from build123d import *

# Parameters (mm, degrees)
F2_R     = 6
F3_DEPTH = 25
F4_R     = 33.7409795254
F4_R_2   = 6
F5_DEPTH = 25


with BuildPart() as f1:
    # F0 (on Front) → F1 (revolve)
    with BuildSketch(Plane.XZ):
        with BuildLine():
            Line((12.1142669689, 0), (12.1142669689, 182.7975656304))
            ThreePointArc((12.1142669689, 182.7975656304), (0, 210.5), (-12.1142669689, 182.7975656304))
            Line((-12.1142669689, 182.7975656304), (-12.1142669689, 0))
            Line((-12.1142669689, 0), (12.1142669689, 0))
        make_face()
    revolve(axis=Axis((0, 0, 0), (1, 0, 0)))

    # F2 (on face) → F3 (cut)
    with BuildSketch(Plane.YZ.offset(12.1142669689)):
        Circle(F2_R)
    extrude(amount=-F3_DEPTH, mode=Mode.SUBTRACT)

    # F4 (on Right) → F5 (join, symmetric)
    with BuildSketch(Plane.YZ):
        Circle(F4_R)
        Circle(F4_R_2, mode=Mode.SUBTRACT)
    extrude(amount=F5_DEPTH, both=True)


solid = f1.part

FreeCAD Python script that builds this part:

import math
import FreeCAD as App
import Part
import Sketcher

V = App.Vector
Q = App.Units.Quantity

doc = App.newDocument("Part")
body = doc.addObject("PartDesign::Body", "Body")

# Sketch on XZ plane
sketch1 = body.newObject("Sketcher::SketchObject", "Sketch")
sketch1.AttachmentSupport = (doc.getObject("XZ_Plane"), [""])
sketch1.MapMode = "FlatFace"
sketch1.addGeometry([
    Part.LineSegment(V(12, 0, 0), V(12, 183, 0)),
    Part.ArcOfCircle(Part.Circle(V(0, 194, 0), V(0, 0, 1), 16), math.radians(-43), math.radians(223)),
    Part.LineSegment(V(-12, 183, 0), V(-12, 0, 0)),
    Part.LineSegment(V(-12, 0, 0), V(12, 0, 0)),
], False)
sketch1.addConstraint([
    Sketcher.Constraint("Coincident", 0, 2, 1, 1),
    Sketcher.Constraint("Coincident", 1, 2, 2, 1),
    Sketcher.Constraint("Coincident", 2, 2, 3, 1),
    Sketcher.Constraint("Coincident", 3, 2, 0, 1),
    Sketcher.Constraint("Vertical", 0),
    Sketcher.Constraint("Vertical", 2),
    Sketcher.Constraint("Horizontal", 3),
    Sketcher.Constraint("Symmetric", 2, 2, 3, 2, -1, 1),
    Sketcher.Constraint("PointOnObject", 1, 3, -2),
    Sketcher.Constraint("Radius", 1, Q("16.5 mm")),
    Sketcher.Constraint("DistanceY", -1, 1, 1, 3, Q("194 mm")),
    Sketcher.Constraint("DistanceX", 3, 1, 3, 2, Q("24.228534 mm")),
])
revolution = body.newObject("PartDesign::Revolution", "Revolution")
revolution.Profile = sketch1
revolution.ReferenceAxis = (sketch1, ["H_Axis"])
revolution.Angle = 360

# Sketch on YZ plane
sketch2 = body.newObject("Sketcher::SketchObject", "Sketch001")
sketch2.AttachmentSupport = (doc.getObject("YZ_Plane"), [""])
sketch2.MapMode = "FlatFace"
sketch2.AttachmentOffset = App.Placement(V(0, 0, 12.114267), App.Rotation())
sketch2.addGeometry(Part.Circle(V(0, 0, 0), V(0, 0, 1), 6), False)
sketch2.addConstraint([
    Sketcher.Constraint("Coincident", 0, 3, -1, 1),
    Sketcher.Constraint("Diameter", 0, Q("12 mm")),
])
pocket1 = body.newObject("PartDesign::Pocket", "Pocket")
pocket1.Profile = sketch2
pocket1.Length = 25

# Sketch on YZ plane
sketch3 = body.newObject("Sketcher::SketchObject", "Sketch002")
sketch3.AttachmentSupport = (doc.getObject("YZ_Plane"), [""])
sketch3.MapMode = "FlatFace"
sketch3.addGeometry([
    Part.Circle(V(0, 0, 0), V(0, 0, 1), 34),
    Part.Circle(V(0, 0, 0), V(0, 0, 1), 6),
], False)
sketch3.addConstraint([
    Sketcher.Constraint("Coincident", 0, 3, -1, 1),
    Sketcher.Constraint("Coincident", 1, 3, -1, 1),
    Sketcher.Constraint("Diameter", 1, Q("12 mm")),
    Sketcher.Constraint("Diameter", 0, Q("67.481959 mm")),
])
pad1 = body.newObject("PartDesign::Pad", "Pad")
pad1.Profile = sketch3
pad1.Length = 50
pad1.Midplane = True

doc.recompute()
